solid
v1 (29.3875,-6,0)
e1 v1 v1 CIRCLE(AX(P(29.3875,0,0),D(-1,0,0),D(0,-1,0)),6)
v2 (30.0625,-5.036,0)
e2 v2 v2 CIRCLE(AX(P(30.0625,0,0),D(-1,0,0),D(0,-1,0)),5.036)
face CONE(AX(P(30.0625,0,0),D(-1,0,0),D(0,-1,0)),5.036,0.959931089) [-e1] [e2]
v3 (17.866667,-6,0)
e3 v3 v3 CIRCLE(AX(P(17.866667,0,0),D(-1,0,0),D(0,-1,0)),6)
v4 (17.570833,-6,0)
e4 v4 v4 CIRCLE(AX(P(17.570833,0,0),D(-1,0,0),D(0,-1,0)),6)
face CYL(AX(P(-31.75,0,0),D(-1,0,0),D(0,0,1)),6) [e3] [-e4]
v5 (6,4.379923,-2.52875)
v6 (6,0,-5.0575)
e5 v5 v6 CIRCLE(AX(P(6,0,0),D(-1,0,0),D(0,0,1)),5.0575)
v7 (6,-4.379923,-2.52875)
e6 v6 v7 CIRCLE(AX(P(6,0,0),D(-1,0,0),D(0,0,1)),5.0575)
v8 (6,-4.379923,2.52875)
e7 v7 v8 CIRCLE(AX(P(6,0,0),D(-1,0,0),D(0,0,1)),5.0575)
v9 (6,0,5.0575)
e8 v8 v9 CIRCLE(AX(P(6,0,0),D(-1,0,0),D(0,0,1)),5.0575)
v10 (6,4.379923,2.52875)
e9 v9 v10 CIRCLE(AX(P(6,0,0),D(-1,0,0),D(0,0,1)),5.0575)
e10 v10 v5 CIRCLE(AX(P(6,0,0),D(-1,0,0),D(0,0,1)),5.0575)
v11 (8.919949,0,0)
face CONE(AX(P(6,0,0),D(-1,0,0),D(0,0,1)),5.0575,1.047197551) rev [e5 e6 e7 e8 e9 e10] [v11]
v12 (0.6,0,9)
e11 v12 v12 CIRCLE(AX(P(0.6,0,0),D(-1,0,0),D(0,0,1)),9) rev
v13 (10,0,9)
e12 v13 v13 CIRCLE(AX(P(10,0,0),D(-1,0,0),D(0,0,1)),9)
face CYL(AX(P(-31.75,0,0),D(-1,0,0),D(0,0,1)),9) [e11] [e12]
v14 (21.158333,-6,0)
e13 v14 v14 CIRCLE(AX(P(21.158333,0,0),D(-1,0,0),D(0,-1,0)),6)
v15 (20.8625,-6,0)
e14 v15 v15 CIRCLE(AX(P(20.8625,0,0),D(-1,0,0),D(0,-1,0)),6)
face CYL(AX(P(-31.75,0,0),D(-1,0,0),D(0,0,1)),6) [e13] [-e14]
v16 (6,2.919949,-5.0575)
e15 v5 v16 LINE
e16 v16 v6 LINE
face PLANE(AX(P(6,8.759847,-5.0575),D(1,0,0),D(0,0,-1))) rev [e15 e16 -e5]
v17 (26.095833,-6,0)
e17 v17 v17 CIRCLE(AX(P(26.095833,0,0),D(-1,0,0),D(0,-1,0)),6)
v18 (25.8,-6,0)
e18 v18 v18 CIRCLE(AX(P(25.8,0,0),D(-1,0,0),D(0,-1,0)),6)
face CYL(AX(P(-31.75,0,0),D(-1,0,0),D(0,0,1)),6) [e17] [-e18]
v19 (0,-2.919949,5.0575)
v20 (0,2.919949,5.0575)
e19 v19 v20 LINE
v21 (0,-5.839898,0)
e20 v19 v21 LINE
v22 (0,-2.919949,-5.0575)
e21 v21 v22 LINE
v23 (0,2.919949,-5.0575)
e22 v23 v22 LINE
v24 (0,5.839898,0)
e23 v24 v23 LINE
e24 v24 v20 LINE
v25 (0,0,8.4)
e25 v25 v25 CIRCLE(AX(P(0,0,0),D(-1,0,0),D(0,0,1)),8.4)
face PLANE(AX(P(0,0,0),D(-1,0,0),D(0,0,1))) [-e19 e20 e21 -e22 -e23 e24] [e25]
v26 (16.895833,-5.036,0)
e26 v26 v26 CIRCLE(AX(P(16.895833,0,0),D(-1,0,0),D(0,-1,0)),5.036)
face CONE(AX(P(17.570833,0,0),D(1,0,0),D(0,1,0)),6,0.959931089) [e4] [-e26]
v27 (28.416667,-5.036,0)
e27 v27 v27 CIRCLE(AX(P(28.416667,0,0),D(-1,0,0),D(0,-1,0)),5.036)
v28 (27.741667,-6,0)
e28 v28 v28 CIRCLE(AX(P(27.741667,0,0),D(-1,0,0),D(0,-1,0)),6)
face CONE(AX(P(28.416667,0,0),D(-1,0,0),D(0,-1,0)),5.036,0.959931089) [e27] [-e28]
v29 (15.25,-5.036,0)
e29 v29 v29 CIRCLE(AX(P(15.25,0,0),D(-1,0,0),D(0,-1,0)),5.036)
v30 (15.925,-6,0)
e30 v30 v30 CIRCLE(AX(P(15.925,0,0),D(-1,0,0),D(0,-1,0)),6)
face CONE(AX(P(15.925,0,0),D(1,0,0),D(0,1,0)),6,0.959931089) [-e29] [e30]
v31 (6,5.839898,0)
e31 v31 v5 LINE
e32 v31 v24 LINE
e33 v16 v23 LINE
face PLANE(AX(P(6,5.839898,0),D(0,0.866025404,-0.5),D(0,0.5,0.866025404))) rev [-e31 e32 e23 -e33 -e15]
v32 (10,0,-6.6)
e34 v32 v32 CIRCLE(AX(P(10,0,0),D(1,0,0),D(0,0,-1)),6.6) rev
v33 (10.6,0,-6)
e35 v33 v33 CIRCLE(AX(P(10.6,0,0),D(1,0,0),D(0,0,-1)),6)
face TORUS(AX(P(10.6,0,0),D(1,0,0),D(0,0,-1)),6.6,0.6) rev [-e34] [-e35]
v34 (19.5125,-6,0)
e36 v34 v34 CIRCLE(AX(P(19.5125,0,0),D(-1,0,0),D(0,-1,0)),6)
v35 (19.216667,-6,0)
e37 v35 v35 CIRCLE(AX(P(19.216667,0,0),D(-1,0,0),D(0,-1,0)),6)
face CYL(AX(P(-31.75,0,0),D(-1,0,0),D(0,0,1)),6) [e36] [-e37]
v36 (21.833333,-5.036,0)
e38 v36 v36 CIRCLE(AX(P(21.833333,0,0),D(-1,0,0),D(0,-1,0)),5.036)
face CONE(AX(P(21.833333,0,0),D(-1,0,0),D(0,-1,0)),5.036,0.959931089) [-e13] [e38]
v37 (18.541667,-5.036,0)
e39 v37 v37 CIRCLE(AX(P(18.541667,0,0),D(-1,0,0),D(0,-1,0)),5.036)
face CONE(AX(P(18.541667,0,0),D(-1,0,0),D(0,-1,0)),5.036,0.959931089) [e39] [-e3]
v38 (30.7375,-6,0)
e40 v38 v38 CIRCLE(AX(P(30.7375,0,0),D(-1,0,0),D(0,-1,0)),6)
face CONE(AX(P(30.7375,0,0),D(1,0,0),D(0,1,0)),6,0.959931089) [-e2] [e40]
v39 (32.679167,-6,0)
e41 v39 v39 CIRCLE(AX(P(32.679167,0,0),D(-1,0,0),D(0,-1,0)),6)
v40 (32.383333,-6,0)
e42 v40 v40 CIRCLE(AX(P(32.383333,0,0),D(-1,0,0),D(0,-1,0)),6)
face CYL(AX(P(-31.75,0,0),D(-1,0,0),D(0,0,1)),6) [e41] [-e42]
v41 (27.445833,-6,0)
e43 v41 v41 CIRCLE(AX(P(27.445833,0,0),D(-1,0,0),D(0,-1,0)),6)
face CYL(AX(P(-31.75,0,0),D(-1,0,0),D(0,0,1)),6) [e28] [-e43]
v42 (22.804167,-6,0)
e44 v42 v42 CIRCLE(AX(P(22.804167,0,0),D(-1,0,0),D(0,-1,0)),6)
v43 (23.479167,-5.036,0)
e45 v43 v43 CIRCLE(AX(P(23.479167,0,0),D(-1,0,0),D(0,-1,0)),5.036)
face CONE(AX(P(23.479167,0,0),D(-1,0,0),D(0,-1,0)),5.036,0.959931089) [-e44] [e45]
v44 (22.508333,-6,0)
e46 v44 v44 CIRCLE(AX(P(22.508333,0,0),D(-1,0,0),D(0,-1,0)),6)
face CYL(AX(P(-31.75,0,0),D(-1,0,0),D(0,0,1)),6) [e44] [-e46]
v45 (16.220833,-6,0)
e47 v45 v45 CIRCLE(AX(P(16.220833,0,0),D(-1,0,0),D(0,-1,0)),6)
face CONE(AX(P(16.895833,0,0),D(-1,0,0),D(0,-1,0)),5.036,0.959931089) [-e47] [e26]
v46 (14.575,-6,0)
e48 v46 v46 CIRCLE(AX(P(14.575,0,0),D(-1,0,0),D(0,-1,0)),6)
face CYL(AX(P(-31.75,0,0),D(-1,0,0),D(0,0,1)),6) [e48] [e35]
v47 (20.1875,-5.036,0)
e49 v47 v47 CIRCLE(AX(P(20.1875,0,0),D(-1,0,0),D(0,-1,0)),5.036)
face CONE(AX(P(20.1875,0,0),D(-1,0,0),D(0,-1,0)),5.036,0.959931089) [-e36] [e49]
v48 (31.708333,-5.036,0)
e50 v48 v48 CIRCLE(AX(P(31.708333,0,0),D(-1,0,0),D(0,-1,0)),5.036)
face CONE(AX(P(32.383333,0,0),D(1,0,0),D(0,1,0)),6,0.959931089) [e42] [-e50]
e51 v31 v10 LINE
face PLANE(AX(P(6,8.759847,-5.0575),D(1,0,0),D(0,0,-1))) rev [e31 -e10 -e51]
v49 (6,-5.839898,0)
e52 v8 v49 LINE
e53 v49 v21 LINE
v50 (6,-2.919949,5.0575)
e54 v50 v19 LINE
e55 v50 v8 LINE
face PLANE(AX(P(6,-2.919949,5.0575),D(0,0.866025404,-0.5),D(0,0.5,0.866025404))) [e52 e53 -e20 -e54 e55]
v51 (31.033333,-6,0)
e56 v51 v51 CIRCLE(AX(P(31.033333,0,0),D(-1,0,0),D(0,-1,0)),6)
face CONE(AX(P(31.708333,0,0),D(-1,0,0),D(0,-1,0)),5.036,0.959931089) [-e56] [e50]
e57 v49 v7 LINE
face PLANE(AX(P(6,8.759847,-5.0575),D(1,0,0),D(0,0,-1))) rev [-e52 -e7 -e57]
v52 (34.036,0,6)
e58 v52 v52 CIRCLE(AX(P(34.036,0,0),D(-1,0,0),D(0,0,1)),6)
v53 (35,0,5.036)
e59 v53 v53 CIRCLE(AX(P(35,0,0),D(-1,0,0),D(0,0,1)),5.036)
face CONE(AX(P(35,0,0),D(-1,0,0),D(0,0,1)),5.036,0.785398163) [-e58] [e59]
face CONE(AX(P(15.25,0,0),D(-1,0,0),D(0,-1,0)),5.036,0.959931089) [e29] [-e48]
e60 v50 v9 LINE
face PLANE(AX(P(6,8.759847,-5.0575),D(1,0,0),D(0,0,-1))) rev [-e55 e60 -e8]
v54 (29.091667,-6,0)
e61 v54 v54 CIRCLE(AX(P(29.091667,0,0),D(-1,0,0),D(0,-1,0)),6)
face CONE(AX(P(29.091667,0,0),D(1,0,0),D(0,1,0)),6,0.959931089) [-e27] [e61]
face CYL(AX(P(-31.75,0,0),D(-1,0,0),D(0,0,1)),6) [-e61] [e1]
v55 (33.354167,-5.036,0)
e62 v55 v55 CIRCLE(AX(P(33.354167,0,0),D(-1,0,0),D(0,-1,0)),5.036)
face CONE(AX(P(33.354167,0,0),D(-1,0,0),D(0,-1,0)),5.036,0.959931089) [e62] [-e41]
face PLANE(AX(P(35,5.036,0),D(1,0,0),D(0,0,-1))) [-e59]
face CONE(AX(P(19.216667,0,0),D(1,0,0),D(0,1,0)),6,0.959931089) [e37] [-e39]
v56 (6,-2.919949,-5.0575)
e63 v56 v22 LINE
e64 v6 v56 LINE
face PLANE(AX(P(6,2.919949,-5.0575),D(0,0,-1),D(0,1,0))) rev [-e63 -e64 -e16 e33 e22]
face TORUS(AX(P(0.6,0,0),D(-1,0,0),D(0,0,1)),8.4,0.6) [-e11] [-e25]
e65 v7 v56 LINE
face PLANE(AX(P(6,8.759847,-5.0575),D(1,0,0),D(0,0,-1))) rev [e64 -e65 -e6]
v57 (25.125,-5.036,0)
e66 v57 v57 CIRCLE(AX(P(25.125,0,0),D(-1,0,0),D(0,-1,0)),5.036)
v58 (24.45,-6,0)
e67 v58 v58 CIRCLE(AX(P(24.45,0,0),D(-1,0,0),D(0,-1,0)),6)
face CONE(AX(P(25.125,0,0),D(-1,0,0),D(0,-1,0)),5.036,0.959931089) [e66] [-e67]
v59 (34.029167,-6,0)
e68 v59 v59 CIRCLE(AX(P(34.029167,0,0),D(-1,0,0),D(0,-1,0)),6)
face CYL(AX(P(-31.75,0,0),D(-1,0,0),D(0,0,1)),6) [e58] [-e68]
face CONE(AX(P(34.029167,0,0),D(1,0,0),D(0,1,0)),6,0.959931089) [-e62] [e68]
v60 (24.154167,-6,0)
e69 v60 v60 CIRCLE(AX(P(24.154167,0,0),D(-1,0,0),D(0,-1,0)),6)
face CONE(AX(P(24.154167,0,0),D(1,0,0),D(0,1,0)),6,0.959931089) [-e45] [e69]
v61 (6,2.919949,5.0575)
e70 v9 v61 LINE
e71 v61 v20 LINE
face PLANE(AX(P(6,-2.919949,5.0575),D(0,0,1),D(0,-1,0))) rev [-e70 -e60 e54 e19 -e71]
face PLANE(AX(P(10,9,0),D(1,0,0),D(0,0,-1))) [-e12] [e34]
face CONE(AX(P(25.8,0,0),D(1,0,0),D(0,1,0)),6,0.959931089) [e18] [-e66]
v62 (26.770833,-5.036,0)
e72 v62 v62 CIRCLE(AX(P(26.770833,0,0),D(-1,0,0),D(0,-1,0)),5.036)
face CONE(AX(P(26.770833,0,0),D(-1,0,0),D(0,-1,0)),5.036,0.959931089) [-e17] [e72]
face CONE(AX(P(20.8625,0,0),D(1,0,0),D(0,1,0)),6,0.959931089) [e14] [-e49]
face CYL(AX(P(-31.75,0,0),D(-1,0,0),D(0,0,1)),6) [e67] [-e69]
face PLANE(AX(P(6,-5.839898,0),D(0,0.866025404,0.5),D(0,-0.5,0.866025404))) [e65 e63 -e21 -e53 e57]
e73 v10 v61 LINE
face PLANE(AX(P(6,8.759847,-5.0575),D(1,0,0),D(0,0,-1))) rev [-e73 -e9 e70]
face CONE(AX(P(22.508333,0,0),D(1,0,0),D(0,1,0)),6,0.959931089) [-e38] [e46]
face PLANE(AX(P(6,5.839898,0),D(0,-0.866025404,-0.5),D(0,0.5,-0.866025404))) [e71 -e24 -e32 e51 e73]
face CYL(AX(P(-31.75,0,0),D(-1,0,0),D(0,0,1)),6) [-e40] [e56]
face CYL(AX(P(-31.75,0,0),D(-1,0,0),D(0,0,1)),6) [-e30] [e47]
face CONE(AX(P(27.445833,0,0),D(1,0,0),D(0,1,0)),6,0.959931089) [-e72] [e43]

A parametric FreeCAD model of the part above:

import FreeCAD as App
import Part
import Sketcher

V = App.Vector
Q = App.Units.Quantity


def edges_at(feature, points):
    """Names of the edges that pass closest to the given points."""
    edges = feature.Shape.Edges
    near = lambda p: min(range(len(edges)), key=lambda i: edges[i].distToShape(Part.Vertex(*p))[0])
    return sorted({f"Edge{near(p) + 1}" for p in points})

doc = App.newDocument("Part")
body = doc.addObject("PartDesign::Body", "Body")

# Sketch on XY plane
sketch1 = body.newObject("Sketcher::SketchObject", "Sketch")
sketch1.AttachmentSupport = (doc.getObject("XY_Plane"), [""])
sketch1.MapMode = "FlatFace"
sketch1.addGeometry(Part.LineSegment(V(0, 9, 0), V(0, 0, 0)), False)
sketch1.addGeometry(Part.LineSegment(V(0, 0, 0), V(35, 0, 0)), False)
sketch1.addGeometry(Part.LineSegment(V(35, 0, 0), V(35, 5, 0)), False)
sketch1.addGeometry(Part.LineSegment(V(35, 5, 0), V(34, 6, 0)), False)
sketch1.addGeometry(Part.LineSegment(V(34, 6, 0), V(10, 6, 0)), False)
sketch1.addGeometry(Part.LineSegment(V(10, 6, 0), V(10, 9, 0)), False)
sketch1.addGeometry(Part.LineSegment(V(10, 9, 0), V(0, 9, 0)), False)
sketch1.addConstraint(Sketcher.Constraint("Coincident", 0, 2, 1, 1))
sketch1.addConstraint(Sketcher.Constraint("Coincident", 1, 2, 2, 1))
sketch1.addConstraint(Sketcher.Constraint("Coincident", 2, 2, 3, 1))
sketch1.addConstraint(Sketcher.Constraint("Coincident", 3, 2, 4, 1))
sketch1.addConstraint(Sketcher.Constraint("Coincident", 4, 2, 5, 1))
sketch1.addConstraint(Sketcher.Constraint("Coincident", 5, 2, 6, 1))
sketch1.addConstraint(Sketcher.Constraint("Coincident", 6, 2, 0, 1))
sketch1.addConstraint(Sketcher.Constraint("Vertical", 0))
sketch1.addConstraint(Sketcher.Constraint("Horizontal", 1))
sketch1.addConstraint(Sketcher.Constraint("Vertical", 2))
sketch1.addConstraint(Sketcher.Constraint("Horizontal", 4))
sketch1.addConstraint(Sketcher.Constraint("Vertical", 5))
sketch1.addConstraint(Sketcher.Constraint("Horizontal", 6))
sketch1.addConstraint(Sketcher.Constraint("Coincident", 0, 2, -1, 1))
sketch1.addConstraint(Sketcher.Constraint("DistanceX", 1, 1, 1, 2, 35.0))
sketch1.addConstraint(Sketcher.Constraint("DistanceX", 6, 2, 6, 1, 10.0))
sketch1.addConstraint(Sketcher.Constraint("DistanceY", 0, 2, 0, 1, 9.0))
sketch1.addConstraint(Sketcher.Constraint("DistanceY", 5, 1, 5, 2, 3.0))
sketch1.addConstraint(Sketcher.Constraint("Angle", 3, Q("135 deg")))
sketch1.addConstraint(Sketcher.Constraint("DistanceX", 4, 2, 4, 1, 24.036))
revolution = body.newObject("PartDesign::Revolution", "Revolution")
revolution.Profile = sketch1
revolution.ReferenceAxis = (sketch1, ["H_Axis"])
revolution.Angle = 360
doc.recompute()

fillet = body.newObject("PartDesign::Fillet", "Fillet")
fillet.Base = (revolution, edges_at(revolution, [(10, -6, 0)]))
fillet.Radius = 0.6
doc.recompute()

fillet2 = body.newObject("PartDesign::Fillet", "Fillet001")
fillet2.Base = (fillet, edges_at(fillet, [(0, -9, 0)]))
fillet2.Radius = 0.6

# Sketch on XY plane
sketch2 = body.newObject("Sketcher::SketchObject", "Sketch001")
sketch2.AttachmentSupport = (doc.getObject("XY_Plane"), [""])
sketch2.MapMode = "FlatFace"
sketch2.addGeometry(Part.LineSegment(V(6, 5, 0), V(0, 5, 0)), False)
sketch2.addGeometry(Part.LineSegment(V(0, 5, 0), V(0, 0, 0)), False)
sketch2.addGeometry(Part.LineSegment(V(0, 0, 0), V(9, 0, 0)), False)
sketch2.addGeometry(Part.LineSegment(V(9, 0, 0), V(6, 5, 0)), False)
sketch2.addConstraint(Sketcher.Constraint("Coincident", 0, 2, 1, 1))
sketch2.addConstraint(Sketcher.Constraint("Coincident", 1, 2, 2, 1))
sketch2.addConstraint(Sketcher.Constraint("Coincident", 2, 2, 3, 1))
sketch2.addConstraint(Sketcher.Constraint("Coincident", 3, 2, 0, 1))
sketch2.addConstraint(Sketcher.Constraint("Horizontal", 0))
sketch2.addConstraint(Sketcher.Constraint("Vertical", 1))
sketch2.addConstraint(Sketcher.Constraint("Horizontal", 2))
sketch2.addConstraint(Sketcher.Constraint("Coincident", 1, 2, -1, 1))
sketch2.addConstraint(Sketcher.Constraint("DistanceX", 0, 2, 0, 1, 6.0))
sketch2.addConstraint(Sketcher.Constraint("Angle", 3, Q("120 deg")))
sketch2.addConstraint(Sketcher.Constraint("DistanceY", 1, 2, 1, 1, 5.0575))
groove = body.newObject("PartDesign::Groove", "Groove")
groove.Profile = sketch2
groove.ReferenceAxis = (sketch2, ["H_Axis"])
groove.Angle = 360

# Sketch on YZ plane
sketch3 = body.newObject("Sketcher::SketchObject", "Sketch002")
sketch3.AttachmentSupport = (doc.getObject("YZ_Plane"), [""])
sketch3.MapMode = "FlatFace"
sketch3.addGeometry(Part.LineSegment(V(6, 0, 0), V(3, -5, 0)), False)
sketch3.addGeometry(Part.LineSegment(V(3, -5, 0), V(-3, -5, 0)), False)
sketch3.addGeometry(Part.LineSegment(V(-3, -5, 0), V(-6, 0, 0)), False)
sketch3.addGeometry(Part.LineSegment(V(-6, 0, 0), V(-3, 5, 0)), False)
sketch3.addGeometry(Part.LineSegment(V(-3, 5, 0), V(3, 5, 0)), False)
sketch3.addGeometry(Part.LineSegment(V(3, 5, 0), V(6, 0, 0)), False)
sketch3.addConstraint(Sketcher.Constraint("Coincident", 0, 2, 1, 1))
sketch3.addConstraint(Sketcher.Constraint("Coincident", 1, 2, 2, 1))
sketch3.addConstraint(Sketcher.Constraint("Coincident", 2, 2, 3, 1))
sketch3.addConstraint(Sketcher.Constraint("Coincident", 3, 2, 4, 1))
sketch3.addConstraint(Sketcher.Constraint("Coincident", 4, 2, 5, 1))
sketch3.addConstraint(Sketcher.Constraint("Coincident", 5, 2, 0, 1))
sketch3.addConstraint(Sketcher.Constraint("Horizontal", 1))
sketch3.addConstraint(Sketcher.Constraint("Horizontal", 4))
sketch3.addConstraint(Sketcher.Constraint("Symmetric", 0, 2, 3, 2, -1, 1))
sketch3.addConstraint(Sketcher.Constraint("Symmetric", 2, 2, 5, 2, -1, 1))
sketch3.addConstraint(Sketcher.Constraint("PointOnObject", 2, 2, -1))
sketch3.addConstraint(Sketcher.Constraint("Parallel", 2, 5))
sketch3.addConstraint(Sketcher.Constraint("Vertical", 1, 2, 3, 2))
sketch3.addConstraint(Sketcher.Constraint("Angle", 0, Q("-120 deg")))
sketch3.addConstraint(Sketcher.Constraint("DistanceY", 1, 2, 3, 2, 10.115))
sketch3.addConstraint(Sketcher.Constraint("DistanceX", 1, 2, 1, 1, 5.839898))
pocket1 = body.newObject("PartDesign::Pocket", "Pocket")
pocket1.Profile = sketch3
pocket1.Length = 6
pocket1.Reversed = True

# Sketch on XY plane
sketch4 = body.newObject("Sketcher::SketchObject", "Sketch003")
sketch4.AttachmentSupport = (doc.getObject("XY_Plane"), [""])
sketch4.MapMode = "FlatFace"
sketch4.addGeometry(Part.LineSegment(V(15.2, -5, 0), V(14.6, -6, 0)), False)
sketch4.addGeometry(Part.LineSegment(V(14.6, -6, 0), V(14.6, -7.5, 0)), False)
sketch4.addGeometry(Part.LineSegment(V(14.6, -7.5, 0), V(15.9, -7.5, 0)), False)
sketch4.addGeometry(Part.LineSegment(V(15.9, -7.5, 0), V(15.9, -6, 0)), False)
sketch4.addGeometry(Part.LineSegment(V(15.9, -6, 0), V(15.2, -5, 0)), False)
sketch4.addConstraint(Sketcher.Constraint("Coincident", 0, 2, 1, 1))
sketch4.addConstraint(Sketcher.Constraint("Coincident", 1, 2, 2, 1))
sketch4.addConstraint(Sketcher.Constraint("Coincident", 2, 2, 3, 1))
sketch4.addConstraint(Sketcher.Constraint("Coincident", 3, 2, 4, 1))
sketch4.addConstraint(Sketcher.Constraint("Coincident", 4, 2, 0, 1))
sketch4.addConstraint(Sketcher.Constraint("Vertical", 1))
sketch4.addConstraint(Sketcher.Constraint("Horizontal", 2))
sketch4.addConstraint(Sketcher.Constraint("Vertical", 3))
sketch4.addConstraint(Sketcher.Constraint("Horizontal", 0, 2, 3, 2))
sketch4.addConstraint(Sketcher.Constraint("Equal", 0, 4))
sketch4.addConstraint(Sketcher.Constraint("Angle", 0, Q("-125 deg")))
sketch4.addConstraint(Sketcher.Constraint("DistanceY", 1, 2, 1, 1, 1.5))
sketch4.addConstraint(Sketcher.Constraint("DistanceY", 0, 2, -1, 1, 6.0))
sketch4.addConstraint(Sketcher.Constraint("DistanceX", 2, 1, 2, 2, 1.35))
sketch4.addConstraint(Sketcher.Constraint("DistanceX", -1, 1, 4, 2, 15.25))
groove2 = body.newObject("PartDesign::Groove", "Groove001")
groove2.Profile = sketch4
groove2.ReferenceAxis = (sketch4, ["H_Axis"])
groove2.Angle = 360
doc.recompute()

linearpattern = body.newObject("PartDesign::LinearPattern", "LinearPattern")
linearpattern.Originals = [groove2]
linearpattern.Direction = (doc.getObject("X_Axis"), [""])
linearpattern.Mode = "offset"
linearpattern.Offset = 1.645833
linearpattern.Occurrences = 12
body.Tip = linearpattern

doc.recompute()
